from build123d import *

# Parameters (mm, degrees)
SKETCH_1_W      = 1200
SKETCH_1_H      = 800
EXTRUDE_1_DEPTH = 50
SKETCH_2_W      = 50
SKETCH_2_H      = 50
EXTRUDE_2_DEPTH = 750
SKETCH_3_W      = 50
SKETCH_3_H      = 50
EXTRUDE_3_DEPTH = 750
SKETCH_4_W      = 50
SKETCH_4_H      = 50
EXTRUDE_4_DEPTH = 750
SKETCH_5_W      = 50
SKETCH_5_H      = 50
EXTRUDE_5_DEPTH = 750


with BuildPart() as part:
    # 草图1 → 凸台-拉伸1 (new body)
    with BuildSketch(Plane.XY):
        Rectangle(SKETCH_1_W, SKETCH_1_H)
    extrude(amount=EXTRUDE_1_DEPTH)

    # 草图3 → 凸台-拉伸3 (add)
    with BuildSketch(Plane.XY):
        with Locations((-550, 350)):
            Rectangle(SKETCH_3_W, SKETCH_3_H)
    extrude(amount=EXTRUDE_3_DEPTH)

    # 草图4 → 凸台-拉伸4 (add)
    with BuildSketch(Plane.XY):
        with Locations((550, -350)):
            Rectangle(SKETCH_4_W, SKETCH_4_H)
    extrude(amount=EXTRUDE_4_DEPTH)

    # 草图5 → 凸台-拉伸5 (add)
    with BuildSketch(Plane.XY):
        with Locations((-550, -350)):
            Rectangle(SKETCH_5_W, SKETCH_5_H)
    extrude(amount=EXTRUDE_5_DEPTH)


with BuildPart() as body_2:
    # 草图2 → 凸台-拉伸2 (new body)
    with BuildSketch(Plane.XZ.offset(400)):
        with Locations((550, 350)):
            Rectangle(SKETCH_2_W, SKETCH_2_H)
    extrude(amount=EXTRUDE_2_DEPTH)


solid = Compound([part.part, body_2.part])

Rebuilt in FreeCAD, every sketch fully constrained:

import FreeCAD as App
import Part
import Sketcher

V = App.Vector


def add_polygon(sketch, points):
    """Adds a closed chain of lines whose ends are joined by coincident constraints."""
    first, n = sketch.GeometryCount, len(points)
    for a, b in zip(points, points[1:] + points[:1]):
        sketch.addGeometry(Part.LineSegment(App.Vector(*a, 0), App.Vector(*b, 0)), False)
    for i in range(n):
        sketch.addConstraint(Sketcher.Constraint("Coincident", first + i, 2, first + (i + 1) % n, 1))

doc = App.newDocument("Part")
body = doc.addObject("PartDesign::Body", "Body")

# Sketch on XY plane
sketch1 = body.newObject("Sketcher::SketchObject", "Sketch")
sketch1.AttachmentSupport = (doc.getObject("XY_Plane"), [""])
sketch1.MapMode = "FlatFace"
add_polygon(sketch1, [(-600, 400), (-600, -400), (600, -400), (600, 400)])  # lines 0-3
sketch1.addConstraint([
    Sketcher.Constraint("Vertical", 0),
    Sketcher.Constraint("Horizontal", 1),
    Sketcher.Constraint("Vertical", 2),
    Sketcher.Constraint("Horizontal", 3),
    Sketcher.Constraint("Symmetric", 0, 2, 2, 2, -1, 1),
    Sketcher.Constraint("DistanceX", 1, 1, 1, 2, 1200.0),
    Sketcher.Constraint("DistanceY", 0, 2, 0, 1, 800.0),
])
pad1 = body.newObject("PartDesign::Pad", "Pad")
pad1.Profile = sketch1
pad1.Length = 50

# Sketch on XY plane
sketch2 = body.newObject("Sketcher::SketchObject", "Sketch001")
sketch2.AttachmentSupport = (doc.getObject("XY_Plane"), [""])
sketch2.MapMode = "FlatFace"
add_polygon(sketch2, [(-575, 375), (-575, 325), (-525, 325), (-525, 375)])  # lines 0-3
sketch2.addConstraint([
    Sketcher.Constraint("Vertical", 0),
    Sketcher.Constraint("Horizontal", 1),
    Sketcher.Constraint("Vertical", 2),
    Sketcher.Constraint("Horizontal", 3),
    Sketcher.Constraint("Equal", 3, 0),
    Sketcher.Constraint("DistanceX", 1, 1, 1, 2, 50.0),
    Sketcher.Constraint("DistanceX", 0, 2, -1, 1, 575.0),
    Sketcher.Constraint("DistanceY", -1, 1, 0, 2, 325.0),
])
pad2 = body.newObject("PartDesign::Pad", "Pad001")
pad2.Profile = sketch2
pad2.Length = 750

# Sketch on XY plane
sketch3 = body.newObject("Sketcher::SketchObject", "Sketch002")
sketch3.AttachmentSupport = (doc.getObject("XY_Plane"), [""])
sketch3.MapMode = "FlatFace"
add_polygon(sketch3, [(525, -325), (525, -375), (575, -375), (575, -325)])  # lines 0-3
sketch3.addConstraint([
    Sketcher.Constraint("Vertical", 0),
    Sketcher.Constraint("Horizontal", 1),
    Sketcher.Constraint("Vertical", 2),
    Sketcher.Constraint("Horizontal", 3),
    Sketcher.Constraint("Equal", 3, 0),
    Sketcher.Constraint("DistanceX", 1, 1, 1, 2, 50.0),
    Sketcher.Constraint("DistanceX", -1, 1, 0, 2, 525.0),
    Sketcher.Constraint("DistanceY", 0, 2, -1, 1, 375.0),
])
pad3 = body.newObject("PartDesign::Pad", "Pad002")
pad3.Profile = sketch3
pad3.Length = 750

# Sketch on XY plane
sketch4 = body.newObject("Sketcher::SketchObject", "Sketch003")
sketch4.AttachmentSupport = (doc.getObject("XY_Plane"), [""])
sketch4.MapMode = "FlatFace"
add_polygon(sketch4, [(-575, -325), (-575, -375), (-525, -375), (-525, -325)])  # lines 0-3
sketch4.addConstraint([
    Sketcher.Constraint("Vertical", 0),
    Sketcher.Constraint("Horizontal", 1),
    Sketcher.Constraint("Vertical", 2),
    Sketcher.Constraint("Horizontal", 3),
    Sketcher.Constraint("Equal", 3, 0),
    Sketcher.Constraint("DistanceX", 1, 1, 1, 2, 50.0),
    Sketcher.Constraint("DistanceX", 0, 2, -1, 1, 575.0),
    Sketcher.Constraint("DistanceY", 0, 2, -1, 1, 375.0),
])
pad4 = body.newObject("PartDesign::Pad", "Pad003")
pad4.Profile = sketch4
pad4.Length = 750
body2 = doc.addObject("PartDesign::Body", "Body001")

# Sketch on XZ plane
sketch5 = body2.newObject("Sketcher::SketchObject", "Sketch004")
sketch5.AttachmentSupport = (doc.getObject("XZ_Plane001"), [""])
sketch5.MapMode = "FlatFace"
sketch5.AttachmentOffset = App.Placement(V(0, 0, 400), App.Rotation())
add_polygon(sketch5, [(525, 375), (525, 325), (575, 325), (575, 375)])  # lines 0-3
sketch5.addConstraint([
    Sketcher.Constraint("Vertical", 0),
    Sketcher.Constraint("Horizontal", 1),
    Sketcher.Constraint("Vertical", 2),
    Sketcher.Constraint("Horizontal", 3),
    Sketcher.Constraint("Equal", 3, 0),
    Sketcher.Constraint("DistanceX", 1, 1, 1, 2, 50.0),
    Sketcher.Constraint("DistanceX", -1, 1, 0, 2, 525.0),
    Sketcher.Constraint("DistanceY", -1, 1, 0, 2, 325.0),
])
pad5 = body2.newObject("PartDesign::Pad", "Pad004")
pad5.Profile = sketch5
pad5.Length = 750

doc.recompute()
